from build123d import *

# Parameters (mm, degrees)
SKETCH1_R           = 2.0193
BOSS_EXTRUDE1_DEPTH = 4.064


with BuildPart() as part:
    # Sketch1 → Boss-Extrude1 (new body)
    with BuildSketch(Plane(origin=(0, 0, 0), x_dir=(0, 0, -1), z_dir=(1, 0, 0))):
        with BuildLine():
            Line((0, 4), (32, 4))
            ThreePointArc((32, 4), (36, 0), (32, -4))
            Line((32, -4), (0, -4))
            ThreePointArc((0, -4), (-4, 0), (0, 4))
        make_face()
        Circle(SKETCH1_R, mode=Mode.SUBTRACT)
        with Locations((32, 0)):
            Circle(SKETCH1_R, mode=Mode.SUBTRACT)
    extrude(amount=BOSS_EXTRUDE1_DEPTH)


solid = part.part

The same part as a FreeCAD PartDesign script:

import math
import FreeCAD as App
import Part
import Sketcher
from FreeCAD import Vector

doc = App.newDocument("Part")
body = doc.addObject("PartDesign::Body", "Body")

# Sketch on YZ plane
sketch1 = doc.addObject("Sketcher::SketchObject", "Sketch")
body.addObject(sketch1)
sketch1.AttachmentSupport = (doc.YZ_Plane, [""])
sketch1.MapMode = "FlatFace"
sketch1.addGeometry([
    Part.LineSegment(Vector(4, -32, 0), Vector(4, 0, 0)),  # 0
    Part.ArcOfCircle(Part.Circle(Vector(0, 0, 0), Vector(0, 0, 1), 4), math.radians(0), math.radians(180)),  # 1
    Part.LineSegment(Vector(-4, 0, 0), Vector(-4, -32, 0)),  # 2
    Part.ArcOfCircle(Part.Circle(Vector(0, -32, 0), Vector(0, 0, 1), 4), math.radians(180), math.radians(360)),  # 3
    Part.Circle(Vector(0, -32, 0), Vector(0, 0, 1), 2),  # 4
    Part.Circle(Vector(0, 0, 0), Vector(0, 0, 1), 2),  # 5
], False)
sketch1.addConstraint([
    Sketcher.Constraint("Tangent", 0, 2, 1, 1),
    Sketcher.Constraint("Tangent", 1, 2, 2, 1),
    Sketcher.Constraint("Tangent", 2, 2, 3, 1),
    Sketcher.Constraint("Tangent", 3, 2, 0, 1),
    Sketcher.Constraint("Vertical", 0),
    Sketcher.Constraint("Vertical", 2),
    Sketcher.Constraint("Coincident", 1, 3, -1, 1),
    Sketcher.Constraint("Coincident", 5, 3, -1, 1),
    Sketcher.Constraint("Coincident", 4, 3, 3, 3),
    Sketcher.Constraint("Equal", 4, 5),
    Sketcher.Constraint("Radius", 1, 4.0),
    Sketcher.Constraint("DistanceY", 0, 1, 0, 2, 32.0),
    Sketcher.Constraint("Diameter", 4, 4.0386),
])
pad1 = doc.addObject("PartDesign::Pad", "Pad")
body.addObject(pad1)
pad1.Profile = sketch1
pad1.Length = 4.064

doc.recompute()
